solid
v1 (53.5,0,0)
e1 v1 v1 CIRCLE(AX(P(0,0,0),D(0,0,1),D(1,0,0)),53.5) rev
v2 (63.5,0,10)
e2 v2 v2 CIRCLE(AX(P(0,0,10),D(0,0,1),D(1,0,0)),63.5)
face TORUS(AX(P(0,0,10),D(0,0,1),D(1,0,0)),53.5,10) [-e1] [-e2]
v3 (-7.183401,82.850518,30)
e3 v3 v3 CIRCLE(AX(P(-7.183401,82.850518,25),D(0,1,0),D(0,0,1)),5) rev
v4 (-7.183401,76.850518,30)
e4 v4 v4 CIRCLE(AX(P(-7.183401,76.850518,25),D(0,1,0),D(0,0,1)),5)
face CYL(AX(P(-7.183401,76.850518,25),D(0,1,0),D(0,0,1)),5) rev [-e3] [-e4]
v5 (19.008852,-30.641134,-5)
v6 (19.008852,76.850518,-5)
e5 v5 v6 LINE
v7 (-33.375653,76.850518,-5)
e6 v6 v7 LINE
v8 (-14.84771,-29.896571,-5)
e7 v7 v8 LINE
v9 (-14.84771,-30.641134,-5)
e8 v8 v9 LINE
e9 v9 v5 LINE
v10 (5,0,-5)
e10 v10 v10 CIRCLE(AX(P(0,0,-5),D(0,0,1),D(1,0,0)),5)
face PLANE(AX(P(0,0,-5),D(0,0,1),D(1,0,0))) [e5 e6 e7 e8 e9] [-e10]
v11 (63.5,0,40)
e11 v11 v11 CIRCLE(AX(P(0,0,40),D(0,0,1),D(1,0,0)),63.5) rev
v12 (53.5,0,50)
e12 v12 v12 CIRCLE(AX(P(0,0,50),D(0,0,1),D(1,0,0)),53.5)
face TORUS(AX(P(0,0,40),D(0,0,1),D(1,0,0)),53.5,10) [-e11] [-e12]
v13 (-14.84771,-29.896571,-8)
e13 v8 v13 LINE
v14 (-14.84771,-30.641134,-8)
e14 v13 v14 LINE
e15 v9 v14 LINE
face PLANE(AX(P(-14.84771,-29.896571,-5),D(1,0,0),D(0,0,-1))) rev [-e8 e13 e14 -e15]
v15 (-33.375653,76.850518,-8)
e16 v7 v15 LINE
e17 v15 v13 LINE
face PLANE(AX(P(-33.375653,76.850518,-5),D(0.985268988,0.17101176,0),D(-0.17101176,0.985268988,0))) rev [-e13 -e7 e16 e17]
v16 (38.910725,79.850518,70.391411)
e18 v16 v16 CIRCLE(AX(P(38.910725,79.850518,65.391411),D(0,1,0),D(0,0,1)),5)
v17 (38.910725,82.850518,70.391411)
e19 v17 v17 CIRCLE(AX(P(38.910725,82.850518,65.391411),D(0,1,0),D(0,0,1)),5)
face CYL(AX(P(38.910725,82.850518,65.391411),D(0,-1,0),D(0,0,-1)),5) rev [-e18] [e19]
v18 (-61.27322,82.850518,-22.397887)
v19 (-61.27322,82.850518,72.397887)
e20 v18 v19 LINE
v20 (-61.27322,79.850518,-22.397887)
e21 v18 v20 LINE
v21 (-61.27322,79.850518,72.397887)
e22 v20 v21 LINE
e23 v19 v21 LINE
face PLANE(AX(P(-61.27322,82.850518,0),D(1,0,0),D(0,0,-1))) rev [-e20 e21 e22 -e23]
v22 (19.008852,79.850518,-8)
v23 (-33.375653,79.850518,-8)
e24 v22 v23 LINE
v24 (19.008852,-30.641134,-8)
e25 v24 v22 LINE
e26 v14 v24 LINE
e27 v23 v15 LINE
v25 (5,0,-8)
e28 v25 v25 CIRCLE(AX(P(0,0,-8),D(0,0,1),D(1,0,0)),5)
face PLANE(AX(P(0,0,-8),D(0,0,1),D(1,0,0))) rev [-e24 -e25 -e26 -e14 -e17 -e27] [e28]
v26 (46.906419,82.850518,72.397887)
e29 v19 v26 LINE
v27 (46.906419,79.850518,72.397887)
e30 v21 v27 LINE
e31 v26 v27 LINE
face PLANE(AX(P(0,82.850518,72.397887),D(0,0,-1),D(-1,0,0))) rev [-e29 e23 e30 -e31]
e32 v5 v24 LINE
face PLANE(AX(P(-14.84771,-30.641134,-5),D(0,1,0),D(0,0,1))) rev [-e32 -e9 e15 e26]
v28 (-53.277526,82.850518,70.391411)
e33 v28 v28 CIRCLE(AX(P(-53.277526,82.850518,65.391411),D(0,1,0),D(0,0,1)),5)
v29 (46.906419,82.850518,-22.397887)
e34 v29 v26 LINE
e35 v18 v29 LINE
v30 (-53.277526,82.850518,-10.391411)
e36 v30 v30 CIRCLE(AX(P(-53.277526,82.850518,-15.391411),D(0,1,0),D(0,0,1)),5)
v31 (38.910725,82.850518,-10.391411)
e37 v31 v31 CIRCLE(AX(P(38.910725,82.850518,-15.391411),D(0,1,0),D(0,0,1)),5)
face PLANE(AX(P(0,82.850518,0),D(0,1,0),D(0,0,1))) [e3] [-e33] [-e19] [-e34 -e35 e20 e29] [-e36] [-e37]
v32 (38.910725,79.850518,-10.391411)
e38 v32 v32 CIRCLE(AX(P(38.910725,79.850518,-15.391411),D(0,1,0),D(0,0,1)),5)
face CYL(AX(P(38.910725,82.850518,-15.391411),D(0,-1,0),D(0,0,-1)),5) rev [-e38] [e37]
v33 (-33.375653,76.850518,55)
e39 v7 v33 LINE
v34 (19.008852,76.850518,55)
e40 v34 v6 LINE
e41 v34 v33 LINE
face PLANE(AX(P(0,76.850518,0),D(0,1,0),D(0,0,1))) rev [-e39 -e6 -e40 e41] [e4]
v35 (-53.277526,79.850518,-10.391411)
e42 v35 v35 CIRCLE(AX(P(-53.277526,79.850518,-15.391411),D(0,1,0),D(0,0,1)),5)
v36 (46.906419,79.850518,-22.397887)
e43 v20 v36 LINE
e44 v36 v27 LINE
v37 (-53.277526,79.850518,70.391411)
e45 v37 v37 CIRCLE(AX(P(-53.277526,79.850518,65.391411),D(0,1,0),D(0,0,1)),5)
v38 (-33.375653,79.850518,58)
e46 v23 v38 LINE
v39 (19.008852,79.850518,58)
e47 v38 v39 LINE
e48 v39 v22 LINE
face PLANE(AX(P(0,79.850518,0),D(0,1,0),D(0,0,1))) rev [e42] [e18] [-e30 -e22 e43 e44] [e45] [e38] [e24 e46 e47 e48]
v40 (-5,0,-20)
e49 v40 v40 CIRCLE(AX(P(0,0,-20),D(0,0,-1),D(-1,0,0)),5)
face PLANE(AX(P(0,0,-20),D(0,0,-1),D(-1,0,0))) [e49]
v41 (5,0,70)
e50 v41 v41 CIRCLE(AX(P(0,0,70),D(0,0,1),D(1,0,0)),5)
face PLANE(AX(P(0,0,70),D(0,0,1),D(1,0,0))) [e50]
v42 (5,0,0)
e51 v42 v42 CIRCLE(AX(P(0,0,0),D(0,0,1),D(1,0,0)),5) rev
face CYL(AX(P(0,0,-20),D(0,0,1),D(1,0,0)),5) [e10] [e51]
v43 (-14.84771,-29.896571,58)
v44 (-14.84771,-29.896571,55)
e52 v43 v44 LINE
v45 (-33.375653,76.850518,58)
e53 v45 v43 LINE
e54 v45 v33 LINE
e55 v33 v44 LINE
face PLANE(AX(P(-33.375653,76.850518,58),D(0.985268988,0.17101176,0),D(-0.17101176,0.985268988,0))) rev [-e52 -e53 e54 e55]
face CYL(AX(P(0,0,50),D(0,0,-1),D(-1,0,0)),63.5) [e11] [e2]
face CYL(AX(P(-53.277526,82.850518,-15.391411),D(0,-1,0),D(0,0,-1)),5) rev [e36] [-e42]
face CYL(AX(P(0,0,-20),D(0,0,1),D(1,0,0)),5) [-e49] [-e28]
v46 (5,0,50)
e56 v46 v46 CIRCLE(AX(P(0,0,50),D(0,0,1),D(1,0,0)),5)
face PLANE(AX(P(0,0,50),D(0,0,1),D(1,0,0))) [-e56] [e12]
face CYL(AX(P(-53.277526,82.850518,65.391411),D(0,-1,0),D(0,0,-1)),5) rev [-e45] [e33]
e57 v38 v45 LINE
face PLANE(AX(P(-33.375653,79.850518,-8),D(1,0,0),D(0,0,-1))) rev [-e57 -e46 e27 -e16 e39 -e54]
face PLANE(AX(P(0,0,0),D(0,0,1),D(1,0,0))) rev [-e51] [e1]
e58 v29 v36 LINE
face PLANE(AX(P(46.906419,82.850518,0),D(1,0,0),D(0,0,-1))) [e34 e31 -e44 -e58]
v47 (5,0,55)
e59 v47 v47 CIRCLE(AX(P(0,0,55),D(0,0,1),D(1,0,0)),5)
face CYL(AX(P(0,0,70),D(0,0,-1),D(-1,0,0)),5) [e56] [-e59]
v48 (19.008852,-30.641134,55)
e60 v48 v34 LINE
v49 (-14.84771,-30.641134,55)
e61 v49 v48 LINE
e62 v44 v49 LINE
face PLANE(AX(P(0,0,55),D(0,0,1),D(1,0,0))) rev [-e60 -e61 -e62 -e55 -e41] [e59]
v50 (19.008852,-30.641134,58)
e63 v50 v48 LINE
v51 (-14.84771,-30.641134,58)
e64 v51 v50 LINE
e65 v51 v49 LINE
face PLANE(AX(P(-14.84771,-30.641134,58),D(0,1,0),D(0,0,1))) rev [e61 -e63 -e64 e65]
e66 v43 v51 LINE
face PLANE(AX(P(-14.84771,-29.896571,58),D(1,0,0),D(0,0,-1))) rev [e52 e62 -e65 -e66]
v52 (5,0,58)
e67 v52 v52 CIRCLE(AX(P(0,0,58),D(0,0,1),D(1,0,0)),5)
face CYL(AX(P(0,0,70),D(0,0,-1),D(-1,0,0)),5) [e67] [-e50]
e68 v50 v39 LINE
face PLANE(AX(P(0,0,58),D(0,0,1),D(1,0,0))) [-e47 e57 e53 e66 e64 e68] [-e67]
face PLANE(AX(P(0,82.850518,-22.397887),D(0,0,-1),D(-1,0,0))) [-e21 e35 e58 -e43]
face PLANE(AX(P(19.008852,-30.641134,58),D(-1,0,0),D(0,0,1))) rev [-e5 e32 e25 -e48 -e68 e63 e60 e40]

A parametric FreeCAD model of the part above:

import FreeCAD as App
import Part
import Sketcher


def edges_at(feature, points):
    """Names of the edges that pass closest to the given points."""
    edges = feature.Shape.Edges
    near = lambda p: min(range(len(edges)), key=lambda i: edges[i].distToShape(Part.Vertex(*p))[0])
    return sorted({f"Edge{near(p) + 1}" for p in points})

doc = App.newDocument("Part")
body = doc.addObject("PartDesign::Body", "Body")

# Sketch on XY plane
sketch1 = body.newObject("Sketcher::SketchObject", "Sketch")
sketch1.AttachmentSupport = (doc.getObject("XY_Plane"), [""])
sketch1.MapMode = "FlatFace"
sketch1.addGeometry(Part.Circle(App.Vector(0, 0, 0), App.Vector(0, 0, 1), 63.5), False)
sketch1.addConstraint(Sketcher.Constraint("Coincident", 0, 3, -1, 1))
sketch1.addConstraint(Sketcher.Constraint("Diameter", 0, 127.0))
pad1 = body.newObject("PartDesign::Pad", "Pad")
pad1.Profile = sketch1
pad1.Length = 50
doc.recompute()

fillet = body.newObject("PartDesign::Fillet", "Fillet")
fillet.Base = (pad1, edges_at(pad1, [(-63.5, 0, 0), (-63.5, 0, 50)]))
fillet.Radius = 10

# Sketch on XY plane
sketch2 = body.newObject("Sketcher::SketchObject", "Sketch001")
sketch2.AttachmentSupport = (doc.getObject("XY_Plane"), [""])
sketch2.MapMode = "FlatFace"
sketch2.addGeometry(Part.Circle(App.Vector(0, 0, 0), App.Vector(0, 0, 1), 5), False)
sketch2.addConstraint(Sketcher.Constraint("Coincident", 0, 3, -1, 1))
sketch2.addConstraint(Sketcher.Constraint("Diameter", 0, 10.0))
pad2 = body.newObject("PartDesign::Pad", "Pad001")
pad2.Profile = sketch2
pad2.Length = 20
pad2.Reversed = True

# Sketch on XY plane
sketch3 = body.newObject("Sketcher::SketchObject", "Sketch002")
sketch3.AttachmentSupport = (doc.getObject("XY_Plane"), [""])
sketch3.MapMode = "FlatFace"
sketch3.AttachmentOffset = App.Placement(App.Vector(0, 0, 70), App.Rotation())
sketch3.addGeometry(Part.Circle(App.Vector(0, 0, 0), App.Vector(0, 0, 1), 5), False)
sketch3.addConstraint(Sketcher.Constraint("Coincident", 0, 3, -1, 1))
sketch3.addConstraint(Sketcher.Constraint("Diameter", 0, 10.0))
pad3 = body.newObject("PartDesign::Pad", "Pad002")
pad3.Profile = sketch3
pad3.Length = 20
pad3.Reversed = True

# Sketch on XY plane
sketch4 = body.newObject("Sketcher::SketchObject", "Sketch003")
sketch4.AttachmentSupport = (doc.getObject("XY_Plane"), [""])
sketch4.MapMode = "FlatFace"
sketch4.AttachmentOffset = App.Placement(App.Vector(0, 0, 58), App.Rotation())
sketch4.addGeometry(Part.LineSegment(App.Vector(-14.84771, -30.641134, 0), App.Vector(19.008852, -30.641134, 0)), False)
sketch4.addGeometry(Part.LineSegment(App.Vector(19.008852, -30.641134, 0), App.Vector(19.008852, 76.850518, 0)), False)
sketch4.addGeometry(Part.LineSegment(App.Vector(19.008852, 76.850518, 0), App.Vector(-33.375653, 76.850518, 0)), False)
sketch4.addGeometry(Part.LineSegment(App.Vector(-33.375653, 76.850518, 0), App.Vector(-14.84771, -29.896571, 0)), False)
sketch4.addGeometry(Part.LineSegment(App.Vector(-14.84771, -29.896571, 0), App.Vector(-14.84771, -30.641134, 0)), False)
sketch4.addGeometry(Part.Circle(App.Vector(0, 0, 0), App.Vector(0, 0, 1), 5), False)
sketch4.addConstraint(Sketcher.Constraint("Coincident", 0, 2, 1, 1))
sketch4.addConstraint(Sketcher.Constraint("Coincident", 1, 2, 2, 1))
sketch4.addConstraint(Sketcher.Constraint("Coincident", 2, 2, 3, 1))
sketch4.addConstraint(Sketcher.Constraint("Coincident", 3, 2, 4, 1))
sketch4.addConstraint(Sketcher.Constraint("Coincident", 4, 2, 0, 1))
sketch4.addConstraint(Sketcher.Constraint("Horizontal", 0))
sketch4.addConstraint(Sketcher.Constraint("Vertical", 1))
sketch4.addConstraint(Sketcher.Constraint("Horizontal", 2))
sketch4.addConstraint(Sketcher.Constraint("Vertical", 4))
sketch4.addConstraint(Sketcher.Constraint("Coincident", 5, 3, -1, 1))
sketch4.addConstraint(Sketcher.Constraint("Diameter", 5, 10.0))
sketch4.addConstraint(Sketcher.Constraint("DistanceX", 0, 1, 0, 2, 33.856562))
sketch4.addConstraint(Sketcher.Constraint("DistanceX", 2, 2, 2, 1, 52.384505))
sketch4.addConstraint(Sketcher.Constraint("DistanceY", 1, 1, 1, 2, 107.491653))
sketch4.addConstraint(Sketcher.Constraint("DistanceY", 4, 2, 4, 1, 0.744564))
sketch4.addConstraint(Sketcher.Constraint("DistanceX", -1, 1, 0, 2, 19.008852))
sketch4.addConstraint(Sketcher.Constraint("DistanceY", -1, 1, 1, 2, 76.850518))
pad4 = body.newObject("PartDesign::Pad", "Pad003")
pad4.Profile = sketch4
pad4.Length = 3
pad4.Reversed = True
doc.recompute()

linearpattern = body.newObject("PartDesign::LinearPattern", "LinearPattern")
linearpattern.Originals = [pad4]
linearpattern.Direction = (doc.getObject("Z_Axis"), [""])
linearpattern.Mode = "offset"
linearpattern.Offset = 63
linearpattern.Occurrences = 2
linearpattern.Reversed = True
body.Tip = linearpattern

# Sketch on XZ plane
sketch5 = body.newObject("Sketcher::SketchObject", "Sketch004")
sketch5.AttachmentSupport = (doc.getObject("XZ_Plane"), [""])
sketch5.MapMode = "FlatFace"
sketch5.AttachmentOffset = App.Placement(App.Vector(0, 0, -76.850518), App.Rotation())
sketch5.addGeometry(Part.LineSegment(App.Vector(-33.375653, -8, 0), App.Vector(-33.375653, 58, 0)), False)
sketch5.addGeometry(Part.LineSegment(App.Vector(-33.375653, 58, 0), App.Vector(19.008852, 58, 0)), False)
sketch5.addGeometry(Part.LineSegment(App.Vector(19.008852, 58, 0), App.Vector(19.008852, -8, 0)), False)
sketch5.addGeometry(Part.LineSegment(App.Vector(19.008852, -8, 0), App.Vector(-33.375653, -8, 0)), False)
sketch5.addConstraint(Sketcher.Constraint("Coincident", 0, 2, 1, 1))
sketch5.addConstraint(Sketcher.Constraint("Coincident", 1, 2, 2, 1))
sketch5.addConstraint(Sketcher.Constraint("Coincident", 2, 2, 3, 1))
sketch5.addConstraint(Sketcher.Constraint("Coincident", 3, 2, 0, 1))
sketch5.addConstraint(Sketcher.Constraint("Vertical", 0))
sketch5.addConstraint(Sketcher.Constraint("Horizontal", 1))
sketch5.addConstraint(Sketcher.Constraint("Vertical", 2))
sketch5.addConstraint(Sketcher.Constraint("Horizontal", 3))
sketch5.addConstraint(Sketcher.Constraint("DistanceY", 0, 1, 0, 2, 66.0))
sketch5.addConstraint(Sketcher.Constraint("DistanceY", -1, 1, 0, 2, 58.0))
sketch5.addConstraint(Sketcher.Constraint("DistanceX", 1, 1, 1, 2, 52.384505))
sketch5.addConstraint(Sketcher.Constraint("DistanceX", -1, 1, 1, 2, 19.008852))
pad5 = body.newObject("PartDesign::Pad", "Pad004")
pad5.Profile = sketch5
pad5.Length = 3
pad5.Reversed = True

# Sketch on XZ plane
sketch6 = body.newObject("Sketcher::SketchObject", "Sketch005")
sketch6.AttachmentSupport = (doc.getObject("XZ_Plane"), [""])
sketch6.MapMode = "FlatFace"
sketch6.AttachmentOffset = App.Placement(App.Vector(0, 0, -79.850518), App.Rotation())
sketch6.addGeometry(Part.Circle(App.Vector(-7.183401, 25, 0), App.Vector(0, 0, 1), 5), False)
sketch6.addConstraint(Sketcher.Constraint("Diameter", 0, 10.0))
sketch6.addConstraint(Sketcher.Constraint("DistanceY", -1, 1, 0, 3, 25.0))
sketch6.addConstraint(Sketcher.Constraint("DistanceX", 0, 3, -1, 1, 7.183401))
pocket1 = body.newObject("PartDesign::Pocket", "Pocket")
pocket1.Profile = sketch6
pocket1.Length = 3
pocket1.Reversed = True

# Sketch on XZ plane
sketch7 = body.newObject("Sketcher::SketchObject", "Sketch006")
sketch7.AttachmentSupport = (doc.getObject("XZ_Plane"), [""])
sketch7.MapMode = "FlatFace"
sketch7.AttachmentOffset = App.Placement(App.Vector(0, 0, -82.850518), App.Rotation())
sketch7.addGeometry(Part.LineSegment(App.Vector(-61.27322, -22.397887, 0), App.Vector(-61.27322, 72.397887, 0)), False)
sketch7.addGeometry(Part.LineSegment(App.Vector(-61.27322, 72.397887, 0), App.Vector(46.906419, 72.397887, 0)), False)
sketch7.addGeometry(Part.LineSegment(App.Vector(46.906419, 72.397887, 0), App.Vector(46.906419, -22.397887, 0)), False)
sketch7.addGeometry(Part.LineSegment(App.Vector(46.906419, -22.397887, 0), App.Vector(-61.27322, -22.397887, 0)), False)
sketch7.addGeometry(Part.Circle(App.Vector(-53.277526, 65.391411, 0), App.Vector(0, 0, 1), 5), False)
sketch7.addGeometry(Part.Circle(App.Vector(38.910725, 65.391411, 0), App.Vector(0, 0, 1), 5), False)
sketch7.addGeometry(Part.Circle(App.Vector(-53.277526, -15.391411, 0), App.Vector(0, 0, 1), 5), False)
sketch7.addGeometry(Part.Circle(App.Vector(-7.183401, 25, 0), App.Vector(0, 0, 1), 5), False)
sketch7.addGeometry(Part.Circle(App.Vector(38.910725, -15.391411, 0), App.Vector(0, 0, 1), 5), False)
sketch7.addConstraint(Sketcher.Constraint("Coincident", 0, 2, 1, 1))
sketch7.addConstraint(Sketcher.Constraint("Coincident", 1, 2, 2, 1))
sketch7.addConstraint(Sketcher.Constraint("Coincident", 2, 2, 3, 1))
sketch7.addConstraint(Sketcher.Constraint("Coincident", 3, 2, 0, 1))
sketch7.addConstraint(Sketcher.Constraint("Vertical", 0))
sketch7.addConstraint(Sketcher.Constraint("Horizontal", 1))
sketch7.addConstraint(Sketcher.Constraint("Vertical", 2))
sketch7.addConstraint(Sketcher.Constraint("Horizontal", 3))
sketch7.addConstraint(Sketcher.Constraint("Equal", 4, 5))
sketch7.addConstraint(Sketcher.Constraint("Equal", 5, 6))
sketch7.addConstraint(Sketcher.Constraint("Equal", 6, 7))
sketch7.addConstraint(Sketcher.Constraint("Equal", 7, 8))
sketch7.addConstraint(Sketcher.Constraint("Horizontal", 4, 3, 5, 3))
sketch7.addConstraint(Sketcher.Constraint("Horizontal", 6, 3, 8, 3))
sketch7.addConstraint(Sketcher.Constraint("Vertical", 4, 3, 6, 3))
sketch7.addConstraint(Sketcher.Constraint("Vertical", 5, 3, 8, 3))
sketch7.addConstraint(Sketcher.Constraint("Diameter", 4, 10.0))
sketch7.addConstraint(Sketcher.Constraint("DistanceY", -1, 1, 7, 3, 25.0))
sketch7.addConstraint(Sketcher.Constraint("DistanceX", 1, 1, 1, 2, 108.179639))
sketch7.addConstraint(Sketcher.Constraint("DistanceX", 7, 3, -1, 1, 7.183401))
sketch7.addConstraint(Sketcher.Constraint("DistanceY", 6, 3, 0, 2, 87.789298))
sketch7.addConstraint(Sketcher.Constraint("DistanceY", 2, 2, 5, 3, 87.789298))
sketch7.addConstraint(Sketcher.Constraint("DistanceY", 0, 1, 0, 2, 94.795773))
sketch7.addConstraint(Sketcher.Constraint("DistanceY", -1, 1, 4, 3, 65.391411))
sketch7.addConstraint(Sketcher.Constraint("DistanceX", 0, 2, -1, 1, 61.27322))
sketch7.addConstraint(Sketcher.Constraint("DistanceX", 4, 3, 5, 3, 92.188252))
sketch7.addConstraint(Sketcher.Constraint("DistanceX", 4, 3, -1, 1, 53.277526))
pad6 = body.newObject("PartDesign::Pad", "Pad005")
pad6.Profile = sketch7
pad6.Length = 3

doc.recompute()
